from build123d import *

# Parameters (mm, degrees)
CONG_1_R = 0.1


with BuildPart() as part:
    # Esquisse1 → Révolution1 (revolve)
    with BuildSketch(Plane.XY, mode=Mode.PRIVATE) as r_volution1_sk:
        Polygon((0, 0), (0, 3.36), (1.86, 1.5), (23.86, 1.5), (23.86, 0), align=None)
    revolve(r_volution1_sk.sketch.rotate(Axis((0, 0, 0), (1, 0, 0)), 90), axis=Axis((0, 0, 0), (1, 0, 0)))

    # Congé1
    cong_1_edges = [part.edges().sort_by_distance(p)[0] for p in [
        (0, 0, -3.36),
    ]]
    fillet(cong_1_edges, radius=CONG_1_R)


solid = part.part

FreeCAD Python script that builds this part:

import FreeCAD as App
import Part
import Sketcher
Q = App.Units.Quantity


def edges_at(feature, points):
    """Names of the edges that pass closest to the given points."""
    edges = feature.Shape.Edges
    near = lambda p: min(range(len(edges)), key=lambda i: edges[i].distToShape(Part.Vertex(*p))[0])
    return sorted({f"Edge{near(p) + 1}" for p in points})

doc = App.newDocument("Part")
body = doc.addObject("PartDesign::Body", "Body")

sketch1 = body.newObject("Sketcher::SketchObject", "Sketch")
sketch1.AttachmentSupport = (doc.getObject("XY_Plane"), [""])
sketch1.MapMode = "FlatFace"
sketch1.addGeometry([
    Part.LineSegment(App.Vector(0, 3.4, 0), App.Vector(0, 0, 0)),
    Part.LineSegment(App.Vector(0, 0, 0), App.Vector(23.9, 0, 0)),
    Part.LineSegment(App.Vector(23.9, 0, 0), App.Vector(23.9, 1.5, 0)),
    Part.LineSegment(App.Vector(23.9, 1.5, 0), App.Vector(1.9, 1.5, 0)),
    Part.LineSegment(App.Vector(1.9, 1.5, 0), App.Vector(0, 3.4, 0)),
], False)
sketch1.addConstraint([
    Sketcher.Constraint("Coincident", 0, 2, 1, 1),
    Sketcher.Constraint("Coincident", 1, 2, 2, 1),
    Sketcher.Constraint("Coincident", 2, 2, 3, 1),
    Sketcher.Constraint("Coincident", 3, 2, 4, 1),
    Sketcher.Constraint("Coincident", 4, 2, 0, 1),
    Sketcher.Constraint("Vertical", 0),
    Sketcher.Constraint("Horizontal", 1),
    Sketcher.Constraint("Vertical", 2),
    Sketcher.Constraint("Horizontal", 3),
    Sketcher.Constraint("Coincident", 0, 2, -1, 1),
    Sketcher.Constraint("DistanceX", 3, 2, 3, 1, 22.0),
    Sketcher.Constraint("Angle", 4, Q("135 deg")),
    Sketcher.Constraint("DistanceY", 2, 1, 2, 2, 1.5),
    Sketcher.Constraint("DistanceX", 1, 1, 1, 2, 23.86),
])
revolution = body.newObject("PartDesign::Revolution", "Revolution")
revolution.Profile = sketch1
revolution.ReferenceAxis = (sketch1, ["H_Axis"])
revolution.Angle = 360
doc.recompute()

fillet = body.newObject("PartDesign::Fillet", "Fillet")
fillet.Base = (revolution, edges_at(revolution, [(0, 0, -3.36)]))
fillet.Radius = 0.1

doc.recompute()
